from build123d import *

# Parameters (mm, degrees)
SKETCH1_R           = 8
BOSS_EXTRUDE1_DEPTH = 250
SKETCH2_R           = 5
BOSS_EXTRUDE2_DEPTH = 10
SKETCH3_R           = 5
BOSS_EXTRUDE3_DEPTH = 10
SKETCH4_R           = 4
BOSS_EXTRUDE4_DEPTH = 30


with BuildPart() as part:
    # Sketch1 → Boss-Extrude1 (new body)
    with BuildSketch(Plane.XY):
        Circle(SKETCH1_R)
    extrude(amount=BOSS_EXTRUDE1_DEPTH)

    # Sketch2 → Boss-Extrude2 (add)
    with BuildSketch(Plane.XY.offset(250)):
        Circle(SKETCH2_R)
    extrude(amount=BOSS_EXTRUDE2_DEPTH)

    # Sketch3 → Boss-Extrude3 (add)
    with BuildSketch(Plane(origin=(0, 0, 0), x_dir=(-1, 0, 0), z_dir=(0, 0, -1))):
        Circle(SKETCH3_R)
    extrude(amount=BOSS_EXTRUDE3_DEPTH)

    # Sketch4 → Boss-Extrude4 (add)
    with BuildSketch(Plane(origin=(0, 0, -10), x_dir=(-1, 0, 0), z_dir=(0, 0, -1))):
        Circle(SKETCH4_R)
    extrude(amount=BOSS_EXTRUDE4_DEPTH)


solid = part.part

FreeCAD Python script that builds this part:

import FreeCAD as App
import Part
import Sketcher
from FreeCAD import Vector
Q = App.Units.Quantity

doc = App.newDocument("Part")
body = doc.addObject("PartDesign::Body", "Body")

# Sketch on XY plane
sketch1 = body.newObject("Sketcher::SketchObject", "Sketch")
sketch1.AttachmentSupport = (doc.getObject("XY_Plane"), [""])
sketch1.MapMode = "FlatFace"
sketch1.addGeometry(Part.Circle(Vector(0, 0, 0), Vector(0, 0, 1), 8), False)
sketch1.addConstraint(Sketcher.Constraint("Coincident", 0, 3, -1, 1))
sketch1.addConstraint(Sketcher.Constraint("Diameter", 0, Q("16 mm")))
pad1 = body.newObject("PartDesign::Pad", "Pad")
pad1.Profile = sketch1
pad1.Length = 250

# Sketch on XY plane
sketch2 = body.newObject("Sketcher::SketchObject", "Sketch001")
sketch2.AttachmentSupport = (doc.getObject("XY_Plane"), [""])
sketch2.MapMode = "FlatFace"
sketch2.AttachmentOffset = App.Placement(Vector(0, 0, 250), App.Rotation())
sketch2.addGeometry(Part.Circle(Vector(0, 0, 0), Vector(0, 0, 1), 5), False)
sketch2.addConstraint(Sketcher.Constraint("Coincident", 0, 3, -1, 1))
sketch2.addConstraint(Sketcher.Constraint("Diameter", 0, Q("10 mm")))
pad2 = body.newObject("PartDesign::Pad", "Pad001")
pad2.Profile = sketch2
pad2.Length = 10

# Sketch on XY plane
sketch3 = body.newObject("Sketcher::SketchObject", "Sketch002")
sketch3.AttachmentSupport = (doc.getObject("XY_Plane"), [""])
sketch3.MapMode = "FlatFace"
sketch3.addGeometry(Part.Circle(Vector(0, 0, 0), Vector(0, 0, 1), 5), False)
sketch3.addConstraint(Sketcher.Constraint("Coincident", 0, 3, -1, 1))
sketch3.addConstraint(Sketcher.Constraint("Diameter", 0, Q("10 mm")))
pad3 = body.newObject("PartDesign::Pad", "Pad002")
pad3.Profile = sketch3
pad3.Length = 10
pad3.Reversed = True

# Sketch on XY plane
sketch4 = body.newObject("Sketcher::SketchObject", "Sketch003")
sketch4.AttachmentSupport = (doc.getObject("XY_Plane"), [""])
sketch4.MapMode = "FlatFace"
sketch4.AttachmentOffset = App.Placement(Vector(0, 0, -10), App.Rotation())
sketch4.addGeometry(Part.Circle(Vector(0, 0, 0), Vector(0, 0, 1), 4), False)
sketch4.addConstraint(Sketcher.Constraint("Coincident", 0, 3, -1, 1))
sketch4.addConstraint(Sketcher.Constraint("Diameter", 0, Q("8 mm")))
pad4 = body.newObject("PartDesign::Pad", "Pad003")
pad4.Profile = sketch4
pad4.Length = 30
pad4.Reversed = True

doc.recompute()
